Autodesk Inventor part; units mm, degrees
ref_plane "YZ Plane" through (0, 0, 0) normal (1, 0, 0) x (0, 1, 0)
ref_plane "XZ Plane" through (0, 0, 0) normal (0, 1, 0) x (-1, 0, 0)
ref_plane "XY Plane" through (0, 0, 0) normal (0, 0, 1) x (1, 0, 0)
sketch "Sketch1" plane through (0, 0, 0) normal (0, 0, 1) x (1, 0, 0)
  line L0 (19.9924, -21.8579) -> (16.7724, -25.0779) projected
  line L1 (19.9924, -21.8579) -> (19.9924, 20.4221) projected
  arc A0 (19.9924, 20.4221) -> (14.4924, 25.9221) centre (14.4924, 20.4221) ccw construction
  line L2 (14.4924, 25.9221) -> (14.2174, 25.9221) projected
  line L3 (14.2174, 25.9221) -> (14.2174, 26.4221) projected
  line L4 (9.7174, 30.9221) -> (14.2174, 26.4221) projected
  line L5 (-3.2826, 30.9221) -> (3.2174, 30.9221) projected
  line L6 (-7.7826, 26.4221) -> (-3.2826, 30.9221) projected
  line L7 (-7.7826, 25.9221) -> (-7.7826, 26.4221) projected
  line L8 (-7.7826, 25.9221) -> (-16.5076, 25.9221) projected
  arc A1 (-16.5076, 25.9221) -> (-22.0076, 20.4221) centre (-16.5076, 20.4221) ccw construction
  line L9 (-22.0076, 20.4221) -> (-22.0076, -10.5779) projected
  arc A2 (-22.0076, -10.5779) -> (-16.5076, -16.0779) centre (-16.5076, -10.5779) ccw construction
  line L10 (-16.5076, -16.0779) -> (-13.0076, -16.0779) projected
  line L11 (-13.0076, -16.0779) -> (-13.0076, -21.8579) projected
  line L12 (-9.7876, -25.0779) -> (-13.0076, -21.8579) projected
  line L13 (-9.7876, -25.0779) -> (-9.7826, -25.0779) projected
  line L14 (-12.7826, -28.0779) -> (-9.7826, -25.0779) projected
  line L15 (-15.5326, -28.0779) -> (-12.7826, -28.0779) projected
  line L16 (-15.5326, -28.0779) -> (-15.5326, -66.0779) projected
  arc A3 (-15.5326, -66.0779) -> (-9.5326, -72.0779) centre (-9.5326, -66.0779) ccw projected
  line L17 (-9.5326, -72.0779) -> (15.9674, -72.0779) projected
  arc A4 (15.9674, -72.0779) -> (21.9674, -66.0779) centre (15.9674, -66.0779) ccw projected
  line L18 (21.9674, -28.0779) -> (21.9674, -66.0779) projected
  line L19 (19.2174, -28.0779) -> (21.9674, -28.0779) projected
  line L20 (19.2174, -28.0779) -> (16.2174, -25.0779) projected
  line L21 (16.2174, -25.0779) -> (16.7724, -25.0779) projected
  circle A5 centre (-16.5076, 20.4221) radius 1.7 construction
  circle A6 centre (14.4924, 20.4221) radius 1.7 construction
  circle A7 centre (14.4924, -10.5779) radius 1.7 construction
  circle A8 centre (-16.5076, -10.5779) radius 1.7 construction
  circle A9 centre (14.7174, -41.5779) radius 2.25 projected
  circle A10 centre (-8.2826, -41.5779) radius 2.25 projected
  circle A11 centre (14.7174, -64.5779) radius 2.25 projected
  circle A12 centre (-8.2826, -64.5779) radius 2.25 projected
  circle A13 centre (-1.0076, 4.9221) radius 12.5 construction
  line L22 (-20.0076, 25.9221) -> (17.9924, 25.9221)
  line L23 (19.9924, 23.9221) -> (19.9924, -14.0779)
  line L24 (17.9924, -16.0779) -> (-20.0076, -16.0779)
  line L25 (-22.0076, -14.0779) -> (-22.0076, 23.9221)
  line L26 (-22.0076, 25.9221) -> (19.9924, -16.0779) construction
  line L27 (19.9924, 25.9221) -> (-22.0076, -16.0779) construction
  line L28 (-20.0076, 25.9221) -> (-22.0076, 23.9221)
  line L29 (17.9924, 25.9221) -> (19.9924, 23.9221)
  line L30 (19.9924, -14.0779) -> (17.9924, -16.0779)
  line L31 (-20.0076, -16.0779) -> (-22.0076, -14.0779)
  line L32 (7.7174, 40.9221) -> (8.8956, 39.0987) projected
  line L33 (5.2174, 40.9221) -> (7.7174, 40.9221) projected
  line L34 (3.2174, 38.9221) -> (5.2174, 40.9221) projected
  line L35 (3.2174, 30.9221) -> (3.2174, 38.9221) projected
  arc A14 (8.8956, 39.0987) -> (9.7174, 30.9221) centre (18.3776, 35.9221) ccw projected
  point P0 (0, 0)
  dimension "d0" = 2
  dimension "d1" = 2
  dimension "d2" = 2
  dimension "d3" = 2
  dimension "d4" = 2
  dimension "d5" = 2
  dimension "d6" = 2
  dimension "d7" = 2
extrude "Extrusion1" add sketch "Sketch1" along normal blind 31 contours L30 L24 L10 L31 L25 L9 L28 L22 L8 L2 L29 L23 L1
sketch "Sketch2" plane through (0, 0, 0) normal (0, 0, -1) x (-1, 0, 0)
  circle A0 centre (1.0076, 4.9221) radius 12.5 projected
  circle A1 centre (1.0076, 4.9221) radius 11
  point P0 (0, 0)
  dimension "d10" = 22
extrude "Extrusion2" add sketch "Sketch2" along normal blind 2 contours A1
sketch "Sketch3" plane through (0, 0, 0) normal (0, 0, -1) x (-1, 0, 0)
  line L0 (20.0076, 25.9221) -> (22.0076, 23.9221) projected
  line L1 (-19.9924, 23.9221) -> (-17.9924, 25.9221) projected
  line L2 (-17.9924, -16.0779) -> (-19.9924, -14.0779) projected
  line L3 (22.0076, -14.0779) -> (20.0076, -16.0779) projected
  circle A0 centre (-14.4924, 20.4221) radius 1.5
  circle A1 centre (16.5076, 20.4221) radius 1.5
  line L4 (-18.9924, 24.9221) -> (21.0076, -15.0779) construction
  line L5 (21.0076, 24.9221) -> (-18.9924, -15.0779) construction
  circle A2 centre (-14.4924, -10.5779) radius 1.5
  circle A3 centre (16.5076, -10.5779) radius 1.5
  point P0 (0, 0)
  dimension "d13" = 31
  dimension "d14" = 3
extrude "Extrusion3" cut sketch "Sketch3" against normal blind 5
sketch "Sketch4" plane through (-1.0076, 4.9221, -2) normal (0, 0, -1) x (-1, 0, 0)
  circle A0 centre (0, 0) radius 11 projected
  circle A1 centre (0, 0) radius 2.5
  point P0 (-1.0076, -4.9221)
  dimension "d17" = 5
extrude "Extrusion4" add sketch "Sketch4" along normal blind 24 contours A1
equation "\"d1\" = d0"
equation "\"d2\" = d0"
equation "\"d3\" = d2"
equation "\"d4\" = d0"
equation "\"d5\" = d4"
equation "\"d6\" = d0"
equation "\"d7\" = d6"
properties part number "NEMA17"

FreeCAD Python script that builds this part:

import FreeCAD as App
import Part
import Sketcher
from FreeCAD import Vector
Q = App.Units.Quantity

doc = App.newDocument("Part")
body = doc.addObject("PartDesign::Body", "Body")

sketch1 = body.newObject("Sketcher::SketchObject", "Sketch")
sketch1.AttachmentSupport = (doc.getObject("XY_Plane"), [""])
sketch1.MapMode = "FlatFace"
sketch1.addGeometry([
    Part.LineSegment(Vector(18, -16.1, 0), Vector(20, -14.1, 0)),
    Part.LineSegment(Vector(20, -14.1, 0), Vector(20, 23.9, 0)),
    Part.LineSegment(Vector(20, 23.9, 0), Vector(18, 25.9, 0)),
    Part.LineSegment(Vector(18, 25.9, 0), Vector(-20, 25.9, 0)),
    Part.LineSegment(Vector(-20, 25.9, 0), Vector(-22, 23.9, 0)),
    Part.LineSegment(Vector(-22, 23.9, 0), Vector(-22, -14.1, 0)),
    Part.LineSegment(Vector(-22, -14.1, 0), Vector(-20, -16.1, 0)),
    Part.LineSegment(Vector(-20, -16.1, 0), Vector(18, -16.1, 0)),
], False)
sketch1.addConstraint([
    Sketcher.Constraint("Coincident", 0, 2, 1, 1),
    Sketcher.Constraint("Coincident", 1, 2, 2, 1),
    Sketcher.Constraint("Coincident", 2, 2, 3, 1),
    Sketcher.Constraint("Coincident", 3, 2, 4, 1),
    Sketcher.Constraint("Coincident", 4, 2, 5, 1),
    Sketcher.Constraint("Coincident", 5, 2, 6, 1),
    Sketcher.Constraint("Coincident", 6, 2, 7, 1),
    Sketcher.Constraint("Coincident", 7, 2, 0, 1),
    Sketcher.Constraint("Vertical", 1),
    Sketcher.Constraint("Horizontal", 3),
    Sketcher.Constraint("Vertical", 5),
    Sketcher.Constraint("Horizontal", 7),
    Sketcher.Constraint("Perpendicular", 0, 2),
    Sketcher.Constraint("Perpendicular", 2, 4),
    Sketcher.Constraint("Perpendicular", 4, 6),
    Sketcher.Constraint("Horizontal", 1, 2, 4, 2),
    Sketcher.Constraint("Horizontal", 0, 2, 5, 2),
    Sketcher.Constraint("Vertical", 3, 2, 6, 2),
    Sketcher.Constraint("Vertical", 2, 2, 7, 2),
    Sketcher.Constraint("Equal", 7, 1),
    Sketcher.Constraint("DistanceX", 2, 2, 1, 2, Q("2 mm")),
    Sketcher.Constraint("DistanceX", 3, 2, 3, 1, Q("38 mm")),
    Sketcher.Constraint("DistanceY", 0, 2, -1, 1, Q("14.078 mm")),
    Sketcher.Constraint("DistanceX", -1, 1, 0, 2, Q("19.9924 mm")),
])
pad1 = body.newObject("PartDesign::Pad", "Pad")
pad1.Profile = sketch1
pad1.Length = 31

sketch2 = body.newObject("Sketcher::SketchObject", "Sketch001")
sketch2.AttachmentSupport = (doc.getObject("XY_Plane"), [""])
sketch2.MapMode = "FlatFace"
sketch2.addGeometry(Part.Circle(Vector(-1, 5, 0), Vector(0, 0, 1), 11), False)
sketch2.addConstraint([
    Sketcher.Constraint("Diameter", 0, Q("22 mm")),
    Sketcher.Constraint("DistanceY", -1, 1, 0, 3, Q("4.922 mm")),
    Sketcher.Constraint("DistanceX", 0, 3, -1, 1, Q("1.0076 mm")),
])
pad2 = body.newObject("PartDesign::Pad", "Pad001")
pad2.Profile = sketch2
pad2.Length = 2
pad2.Reversed = True

sketch3 = body.newObject("Sketcher::SketchObject", "Sketch002")
sketch3.AttachmentSupport = (doc.getObject("XY_Plane"), [""])
sketch3.MapMode = "FlatFace"
sketch3.addGeometry([
    Part.Circle(Vector(14.5, 20.4, 0), Vector(0, 0, 1), 1.5),
    Part.Circle(Vector(-16.5, 20.4, 0), Vector(0, 0, 1), 1.5),
    Part.Circle(Vector(14.5, -10.6, 0), Vector(0, 0, 1), 1.5),
    Part.Circle(Vector(-16.5, -10.6, 0), Vector(0, 0, 1), 1.5),
], False)
sketch3.addConstraint([
    Sketcher.Constraint("Equal", 0, 1),
    Sketcher.Constraint("Equal", 1, 2),
    Sketcher.Constraint("Equal", 2, 3),
    Sketcher.Constraint("Horizontal", 0, 3, 1, 3),
    Sketcher.Constraint("Horizontal", 2, 3, 3, 3),
    Sketcher.Constraint("Vertical", 0, 3, 2, 3),
    Sketcher.Constraint("Vertical", 1, 3, 3, 3),
    Sketcher.Constraint("Diameter", 0, Q("3 mm")),
    Sketcher.Constraint("DistanceX", 1, 3, 0, 3, Q("31 mm")),
    Sketcher.Constraint("DistanceY", 2, 3, 0, 3, Q("31 mm")),
    Sketcher.Constraint("DistanceY", -1, 1, 0, 3, Q("20.422 mm")),
    Sketcher.Constraint("DistanceX", -1, 1, 0, 3, Q("14.4924 mm")),
])
pocket1 = body.newObject("PartDesign::Pocket", "Pocket")
pocket1.Profile = sketch3
pocket1.Length = 5
pocket1.Reversed = True

sketch4 = body.newObject("Sketcher::SketchObject", "Sketch003")
sketch4.AttachmentSupport = (doc.getObject("XY_Plane"), [""])
sketch4.MapMode = "FlatFace"
sketch4.AttachmentOffset = App.Placement(Vector(0, 0, -2), App.Rotation())
sketch4.addGeometry(Part.Circle(Vector(-1, 4.9, 0), Vector(0, 0, 1), 2.5), False)
sketch4.addConstraint([
    Sketcher.Constraint("Diameter", 0, Q("5 mm")),
    Sketcher.Constraint("DistanceY", -1, 1, 0, 3, Q("4.922 mm")),
    Sketcher.Constraint("DistanceX", 0, 3, -1, 1, Q("1.0076 mm")),
])
pad3 = body.newObject("PartDesign::Pad", "Pad002")
pad3.Profile = sketch4
pad3.Length = 24
pad3.Reversed = True

doc.recompute()
